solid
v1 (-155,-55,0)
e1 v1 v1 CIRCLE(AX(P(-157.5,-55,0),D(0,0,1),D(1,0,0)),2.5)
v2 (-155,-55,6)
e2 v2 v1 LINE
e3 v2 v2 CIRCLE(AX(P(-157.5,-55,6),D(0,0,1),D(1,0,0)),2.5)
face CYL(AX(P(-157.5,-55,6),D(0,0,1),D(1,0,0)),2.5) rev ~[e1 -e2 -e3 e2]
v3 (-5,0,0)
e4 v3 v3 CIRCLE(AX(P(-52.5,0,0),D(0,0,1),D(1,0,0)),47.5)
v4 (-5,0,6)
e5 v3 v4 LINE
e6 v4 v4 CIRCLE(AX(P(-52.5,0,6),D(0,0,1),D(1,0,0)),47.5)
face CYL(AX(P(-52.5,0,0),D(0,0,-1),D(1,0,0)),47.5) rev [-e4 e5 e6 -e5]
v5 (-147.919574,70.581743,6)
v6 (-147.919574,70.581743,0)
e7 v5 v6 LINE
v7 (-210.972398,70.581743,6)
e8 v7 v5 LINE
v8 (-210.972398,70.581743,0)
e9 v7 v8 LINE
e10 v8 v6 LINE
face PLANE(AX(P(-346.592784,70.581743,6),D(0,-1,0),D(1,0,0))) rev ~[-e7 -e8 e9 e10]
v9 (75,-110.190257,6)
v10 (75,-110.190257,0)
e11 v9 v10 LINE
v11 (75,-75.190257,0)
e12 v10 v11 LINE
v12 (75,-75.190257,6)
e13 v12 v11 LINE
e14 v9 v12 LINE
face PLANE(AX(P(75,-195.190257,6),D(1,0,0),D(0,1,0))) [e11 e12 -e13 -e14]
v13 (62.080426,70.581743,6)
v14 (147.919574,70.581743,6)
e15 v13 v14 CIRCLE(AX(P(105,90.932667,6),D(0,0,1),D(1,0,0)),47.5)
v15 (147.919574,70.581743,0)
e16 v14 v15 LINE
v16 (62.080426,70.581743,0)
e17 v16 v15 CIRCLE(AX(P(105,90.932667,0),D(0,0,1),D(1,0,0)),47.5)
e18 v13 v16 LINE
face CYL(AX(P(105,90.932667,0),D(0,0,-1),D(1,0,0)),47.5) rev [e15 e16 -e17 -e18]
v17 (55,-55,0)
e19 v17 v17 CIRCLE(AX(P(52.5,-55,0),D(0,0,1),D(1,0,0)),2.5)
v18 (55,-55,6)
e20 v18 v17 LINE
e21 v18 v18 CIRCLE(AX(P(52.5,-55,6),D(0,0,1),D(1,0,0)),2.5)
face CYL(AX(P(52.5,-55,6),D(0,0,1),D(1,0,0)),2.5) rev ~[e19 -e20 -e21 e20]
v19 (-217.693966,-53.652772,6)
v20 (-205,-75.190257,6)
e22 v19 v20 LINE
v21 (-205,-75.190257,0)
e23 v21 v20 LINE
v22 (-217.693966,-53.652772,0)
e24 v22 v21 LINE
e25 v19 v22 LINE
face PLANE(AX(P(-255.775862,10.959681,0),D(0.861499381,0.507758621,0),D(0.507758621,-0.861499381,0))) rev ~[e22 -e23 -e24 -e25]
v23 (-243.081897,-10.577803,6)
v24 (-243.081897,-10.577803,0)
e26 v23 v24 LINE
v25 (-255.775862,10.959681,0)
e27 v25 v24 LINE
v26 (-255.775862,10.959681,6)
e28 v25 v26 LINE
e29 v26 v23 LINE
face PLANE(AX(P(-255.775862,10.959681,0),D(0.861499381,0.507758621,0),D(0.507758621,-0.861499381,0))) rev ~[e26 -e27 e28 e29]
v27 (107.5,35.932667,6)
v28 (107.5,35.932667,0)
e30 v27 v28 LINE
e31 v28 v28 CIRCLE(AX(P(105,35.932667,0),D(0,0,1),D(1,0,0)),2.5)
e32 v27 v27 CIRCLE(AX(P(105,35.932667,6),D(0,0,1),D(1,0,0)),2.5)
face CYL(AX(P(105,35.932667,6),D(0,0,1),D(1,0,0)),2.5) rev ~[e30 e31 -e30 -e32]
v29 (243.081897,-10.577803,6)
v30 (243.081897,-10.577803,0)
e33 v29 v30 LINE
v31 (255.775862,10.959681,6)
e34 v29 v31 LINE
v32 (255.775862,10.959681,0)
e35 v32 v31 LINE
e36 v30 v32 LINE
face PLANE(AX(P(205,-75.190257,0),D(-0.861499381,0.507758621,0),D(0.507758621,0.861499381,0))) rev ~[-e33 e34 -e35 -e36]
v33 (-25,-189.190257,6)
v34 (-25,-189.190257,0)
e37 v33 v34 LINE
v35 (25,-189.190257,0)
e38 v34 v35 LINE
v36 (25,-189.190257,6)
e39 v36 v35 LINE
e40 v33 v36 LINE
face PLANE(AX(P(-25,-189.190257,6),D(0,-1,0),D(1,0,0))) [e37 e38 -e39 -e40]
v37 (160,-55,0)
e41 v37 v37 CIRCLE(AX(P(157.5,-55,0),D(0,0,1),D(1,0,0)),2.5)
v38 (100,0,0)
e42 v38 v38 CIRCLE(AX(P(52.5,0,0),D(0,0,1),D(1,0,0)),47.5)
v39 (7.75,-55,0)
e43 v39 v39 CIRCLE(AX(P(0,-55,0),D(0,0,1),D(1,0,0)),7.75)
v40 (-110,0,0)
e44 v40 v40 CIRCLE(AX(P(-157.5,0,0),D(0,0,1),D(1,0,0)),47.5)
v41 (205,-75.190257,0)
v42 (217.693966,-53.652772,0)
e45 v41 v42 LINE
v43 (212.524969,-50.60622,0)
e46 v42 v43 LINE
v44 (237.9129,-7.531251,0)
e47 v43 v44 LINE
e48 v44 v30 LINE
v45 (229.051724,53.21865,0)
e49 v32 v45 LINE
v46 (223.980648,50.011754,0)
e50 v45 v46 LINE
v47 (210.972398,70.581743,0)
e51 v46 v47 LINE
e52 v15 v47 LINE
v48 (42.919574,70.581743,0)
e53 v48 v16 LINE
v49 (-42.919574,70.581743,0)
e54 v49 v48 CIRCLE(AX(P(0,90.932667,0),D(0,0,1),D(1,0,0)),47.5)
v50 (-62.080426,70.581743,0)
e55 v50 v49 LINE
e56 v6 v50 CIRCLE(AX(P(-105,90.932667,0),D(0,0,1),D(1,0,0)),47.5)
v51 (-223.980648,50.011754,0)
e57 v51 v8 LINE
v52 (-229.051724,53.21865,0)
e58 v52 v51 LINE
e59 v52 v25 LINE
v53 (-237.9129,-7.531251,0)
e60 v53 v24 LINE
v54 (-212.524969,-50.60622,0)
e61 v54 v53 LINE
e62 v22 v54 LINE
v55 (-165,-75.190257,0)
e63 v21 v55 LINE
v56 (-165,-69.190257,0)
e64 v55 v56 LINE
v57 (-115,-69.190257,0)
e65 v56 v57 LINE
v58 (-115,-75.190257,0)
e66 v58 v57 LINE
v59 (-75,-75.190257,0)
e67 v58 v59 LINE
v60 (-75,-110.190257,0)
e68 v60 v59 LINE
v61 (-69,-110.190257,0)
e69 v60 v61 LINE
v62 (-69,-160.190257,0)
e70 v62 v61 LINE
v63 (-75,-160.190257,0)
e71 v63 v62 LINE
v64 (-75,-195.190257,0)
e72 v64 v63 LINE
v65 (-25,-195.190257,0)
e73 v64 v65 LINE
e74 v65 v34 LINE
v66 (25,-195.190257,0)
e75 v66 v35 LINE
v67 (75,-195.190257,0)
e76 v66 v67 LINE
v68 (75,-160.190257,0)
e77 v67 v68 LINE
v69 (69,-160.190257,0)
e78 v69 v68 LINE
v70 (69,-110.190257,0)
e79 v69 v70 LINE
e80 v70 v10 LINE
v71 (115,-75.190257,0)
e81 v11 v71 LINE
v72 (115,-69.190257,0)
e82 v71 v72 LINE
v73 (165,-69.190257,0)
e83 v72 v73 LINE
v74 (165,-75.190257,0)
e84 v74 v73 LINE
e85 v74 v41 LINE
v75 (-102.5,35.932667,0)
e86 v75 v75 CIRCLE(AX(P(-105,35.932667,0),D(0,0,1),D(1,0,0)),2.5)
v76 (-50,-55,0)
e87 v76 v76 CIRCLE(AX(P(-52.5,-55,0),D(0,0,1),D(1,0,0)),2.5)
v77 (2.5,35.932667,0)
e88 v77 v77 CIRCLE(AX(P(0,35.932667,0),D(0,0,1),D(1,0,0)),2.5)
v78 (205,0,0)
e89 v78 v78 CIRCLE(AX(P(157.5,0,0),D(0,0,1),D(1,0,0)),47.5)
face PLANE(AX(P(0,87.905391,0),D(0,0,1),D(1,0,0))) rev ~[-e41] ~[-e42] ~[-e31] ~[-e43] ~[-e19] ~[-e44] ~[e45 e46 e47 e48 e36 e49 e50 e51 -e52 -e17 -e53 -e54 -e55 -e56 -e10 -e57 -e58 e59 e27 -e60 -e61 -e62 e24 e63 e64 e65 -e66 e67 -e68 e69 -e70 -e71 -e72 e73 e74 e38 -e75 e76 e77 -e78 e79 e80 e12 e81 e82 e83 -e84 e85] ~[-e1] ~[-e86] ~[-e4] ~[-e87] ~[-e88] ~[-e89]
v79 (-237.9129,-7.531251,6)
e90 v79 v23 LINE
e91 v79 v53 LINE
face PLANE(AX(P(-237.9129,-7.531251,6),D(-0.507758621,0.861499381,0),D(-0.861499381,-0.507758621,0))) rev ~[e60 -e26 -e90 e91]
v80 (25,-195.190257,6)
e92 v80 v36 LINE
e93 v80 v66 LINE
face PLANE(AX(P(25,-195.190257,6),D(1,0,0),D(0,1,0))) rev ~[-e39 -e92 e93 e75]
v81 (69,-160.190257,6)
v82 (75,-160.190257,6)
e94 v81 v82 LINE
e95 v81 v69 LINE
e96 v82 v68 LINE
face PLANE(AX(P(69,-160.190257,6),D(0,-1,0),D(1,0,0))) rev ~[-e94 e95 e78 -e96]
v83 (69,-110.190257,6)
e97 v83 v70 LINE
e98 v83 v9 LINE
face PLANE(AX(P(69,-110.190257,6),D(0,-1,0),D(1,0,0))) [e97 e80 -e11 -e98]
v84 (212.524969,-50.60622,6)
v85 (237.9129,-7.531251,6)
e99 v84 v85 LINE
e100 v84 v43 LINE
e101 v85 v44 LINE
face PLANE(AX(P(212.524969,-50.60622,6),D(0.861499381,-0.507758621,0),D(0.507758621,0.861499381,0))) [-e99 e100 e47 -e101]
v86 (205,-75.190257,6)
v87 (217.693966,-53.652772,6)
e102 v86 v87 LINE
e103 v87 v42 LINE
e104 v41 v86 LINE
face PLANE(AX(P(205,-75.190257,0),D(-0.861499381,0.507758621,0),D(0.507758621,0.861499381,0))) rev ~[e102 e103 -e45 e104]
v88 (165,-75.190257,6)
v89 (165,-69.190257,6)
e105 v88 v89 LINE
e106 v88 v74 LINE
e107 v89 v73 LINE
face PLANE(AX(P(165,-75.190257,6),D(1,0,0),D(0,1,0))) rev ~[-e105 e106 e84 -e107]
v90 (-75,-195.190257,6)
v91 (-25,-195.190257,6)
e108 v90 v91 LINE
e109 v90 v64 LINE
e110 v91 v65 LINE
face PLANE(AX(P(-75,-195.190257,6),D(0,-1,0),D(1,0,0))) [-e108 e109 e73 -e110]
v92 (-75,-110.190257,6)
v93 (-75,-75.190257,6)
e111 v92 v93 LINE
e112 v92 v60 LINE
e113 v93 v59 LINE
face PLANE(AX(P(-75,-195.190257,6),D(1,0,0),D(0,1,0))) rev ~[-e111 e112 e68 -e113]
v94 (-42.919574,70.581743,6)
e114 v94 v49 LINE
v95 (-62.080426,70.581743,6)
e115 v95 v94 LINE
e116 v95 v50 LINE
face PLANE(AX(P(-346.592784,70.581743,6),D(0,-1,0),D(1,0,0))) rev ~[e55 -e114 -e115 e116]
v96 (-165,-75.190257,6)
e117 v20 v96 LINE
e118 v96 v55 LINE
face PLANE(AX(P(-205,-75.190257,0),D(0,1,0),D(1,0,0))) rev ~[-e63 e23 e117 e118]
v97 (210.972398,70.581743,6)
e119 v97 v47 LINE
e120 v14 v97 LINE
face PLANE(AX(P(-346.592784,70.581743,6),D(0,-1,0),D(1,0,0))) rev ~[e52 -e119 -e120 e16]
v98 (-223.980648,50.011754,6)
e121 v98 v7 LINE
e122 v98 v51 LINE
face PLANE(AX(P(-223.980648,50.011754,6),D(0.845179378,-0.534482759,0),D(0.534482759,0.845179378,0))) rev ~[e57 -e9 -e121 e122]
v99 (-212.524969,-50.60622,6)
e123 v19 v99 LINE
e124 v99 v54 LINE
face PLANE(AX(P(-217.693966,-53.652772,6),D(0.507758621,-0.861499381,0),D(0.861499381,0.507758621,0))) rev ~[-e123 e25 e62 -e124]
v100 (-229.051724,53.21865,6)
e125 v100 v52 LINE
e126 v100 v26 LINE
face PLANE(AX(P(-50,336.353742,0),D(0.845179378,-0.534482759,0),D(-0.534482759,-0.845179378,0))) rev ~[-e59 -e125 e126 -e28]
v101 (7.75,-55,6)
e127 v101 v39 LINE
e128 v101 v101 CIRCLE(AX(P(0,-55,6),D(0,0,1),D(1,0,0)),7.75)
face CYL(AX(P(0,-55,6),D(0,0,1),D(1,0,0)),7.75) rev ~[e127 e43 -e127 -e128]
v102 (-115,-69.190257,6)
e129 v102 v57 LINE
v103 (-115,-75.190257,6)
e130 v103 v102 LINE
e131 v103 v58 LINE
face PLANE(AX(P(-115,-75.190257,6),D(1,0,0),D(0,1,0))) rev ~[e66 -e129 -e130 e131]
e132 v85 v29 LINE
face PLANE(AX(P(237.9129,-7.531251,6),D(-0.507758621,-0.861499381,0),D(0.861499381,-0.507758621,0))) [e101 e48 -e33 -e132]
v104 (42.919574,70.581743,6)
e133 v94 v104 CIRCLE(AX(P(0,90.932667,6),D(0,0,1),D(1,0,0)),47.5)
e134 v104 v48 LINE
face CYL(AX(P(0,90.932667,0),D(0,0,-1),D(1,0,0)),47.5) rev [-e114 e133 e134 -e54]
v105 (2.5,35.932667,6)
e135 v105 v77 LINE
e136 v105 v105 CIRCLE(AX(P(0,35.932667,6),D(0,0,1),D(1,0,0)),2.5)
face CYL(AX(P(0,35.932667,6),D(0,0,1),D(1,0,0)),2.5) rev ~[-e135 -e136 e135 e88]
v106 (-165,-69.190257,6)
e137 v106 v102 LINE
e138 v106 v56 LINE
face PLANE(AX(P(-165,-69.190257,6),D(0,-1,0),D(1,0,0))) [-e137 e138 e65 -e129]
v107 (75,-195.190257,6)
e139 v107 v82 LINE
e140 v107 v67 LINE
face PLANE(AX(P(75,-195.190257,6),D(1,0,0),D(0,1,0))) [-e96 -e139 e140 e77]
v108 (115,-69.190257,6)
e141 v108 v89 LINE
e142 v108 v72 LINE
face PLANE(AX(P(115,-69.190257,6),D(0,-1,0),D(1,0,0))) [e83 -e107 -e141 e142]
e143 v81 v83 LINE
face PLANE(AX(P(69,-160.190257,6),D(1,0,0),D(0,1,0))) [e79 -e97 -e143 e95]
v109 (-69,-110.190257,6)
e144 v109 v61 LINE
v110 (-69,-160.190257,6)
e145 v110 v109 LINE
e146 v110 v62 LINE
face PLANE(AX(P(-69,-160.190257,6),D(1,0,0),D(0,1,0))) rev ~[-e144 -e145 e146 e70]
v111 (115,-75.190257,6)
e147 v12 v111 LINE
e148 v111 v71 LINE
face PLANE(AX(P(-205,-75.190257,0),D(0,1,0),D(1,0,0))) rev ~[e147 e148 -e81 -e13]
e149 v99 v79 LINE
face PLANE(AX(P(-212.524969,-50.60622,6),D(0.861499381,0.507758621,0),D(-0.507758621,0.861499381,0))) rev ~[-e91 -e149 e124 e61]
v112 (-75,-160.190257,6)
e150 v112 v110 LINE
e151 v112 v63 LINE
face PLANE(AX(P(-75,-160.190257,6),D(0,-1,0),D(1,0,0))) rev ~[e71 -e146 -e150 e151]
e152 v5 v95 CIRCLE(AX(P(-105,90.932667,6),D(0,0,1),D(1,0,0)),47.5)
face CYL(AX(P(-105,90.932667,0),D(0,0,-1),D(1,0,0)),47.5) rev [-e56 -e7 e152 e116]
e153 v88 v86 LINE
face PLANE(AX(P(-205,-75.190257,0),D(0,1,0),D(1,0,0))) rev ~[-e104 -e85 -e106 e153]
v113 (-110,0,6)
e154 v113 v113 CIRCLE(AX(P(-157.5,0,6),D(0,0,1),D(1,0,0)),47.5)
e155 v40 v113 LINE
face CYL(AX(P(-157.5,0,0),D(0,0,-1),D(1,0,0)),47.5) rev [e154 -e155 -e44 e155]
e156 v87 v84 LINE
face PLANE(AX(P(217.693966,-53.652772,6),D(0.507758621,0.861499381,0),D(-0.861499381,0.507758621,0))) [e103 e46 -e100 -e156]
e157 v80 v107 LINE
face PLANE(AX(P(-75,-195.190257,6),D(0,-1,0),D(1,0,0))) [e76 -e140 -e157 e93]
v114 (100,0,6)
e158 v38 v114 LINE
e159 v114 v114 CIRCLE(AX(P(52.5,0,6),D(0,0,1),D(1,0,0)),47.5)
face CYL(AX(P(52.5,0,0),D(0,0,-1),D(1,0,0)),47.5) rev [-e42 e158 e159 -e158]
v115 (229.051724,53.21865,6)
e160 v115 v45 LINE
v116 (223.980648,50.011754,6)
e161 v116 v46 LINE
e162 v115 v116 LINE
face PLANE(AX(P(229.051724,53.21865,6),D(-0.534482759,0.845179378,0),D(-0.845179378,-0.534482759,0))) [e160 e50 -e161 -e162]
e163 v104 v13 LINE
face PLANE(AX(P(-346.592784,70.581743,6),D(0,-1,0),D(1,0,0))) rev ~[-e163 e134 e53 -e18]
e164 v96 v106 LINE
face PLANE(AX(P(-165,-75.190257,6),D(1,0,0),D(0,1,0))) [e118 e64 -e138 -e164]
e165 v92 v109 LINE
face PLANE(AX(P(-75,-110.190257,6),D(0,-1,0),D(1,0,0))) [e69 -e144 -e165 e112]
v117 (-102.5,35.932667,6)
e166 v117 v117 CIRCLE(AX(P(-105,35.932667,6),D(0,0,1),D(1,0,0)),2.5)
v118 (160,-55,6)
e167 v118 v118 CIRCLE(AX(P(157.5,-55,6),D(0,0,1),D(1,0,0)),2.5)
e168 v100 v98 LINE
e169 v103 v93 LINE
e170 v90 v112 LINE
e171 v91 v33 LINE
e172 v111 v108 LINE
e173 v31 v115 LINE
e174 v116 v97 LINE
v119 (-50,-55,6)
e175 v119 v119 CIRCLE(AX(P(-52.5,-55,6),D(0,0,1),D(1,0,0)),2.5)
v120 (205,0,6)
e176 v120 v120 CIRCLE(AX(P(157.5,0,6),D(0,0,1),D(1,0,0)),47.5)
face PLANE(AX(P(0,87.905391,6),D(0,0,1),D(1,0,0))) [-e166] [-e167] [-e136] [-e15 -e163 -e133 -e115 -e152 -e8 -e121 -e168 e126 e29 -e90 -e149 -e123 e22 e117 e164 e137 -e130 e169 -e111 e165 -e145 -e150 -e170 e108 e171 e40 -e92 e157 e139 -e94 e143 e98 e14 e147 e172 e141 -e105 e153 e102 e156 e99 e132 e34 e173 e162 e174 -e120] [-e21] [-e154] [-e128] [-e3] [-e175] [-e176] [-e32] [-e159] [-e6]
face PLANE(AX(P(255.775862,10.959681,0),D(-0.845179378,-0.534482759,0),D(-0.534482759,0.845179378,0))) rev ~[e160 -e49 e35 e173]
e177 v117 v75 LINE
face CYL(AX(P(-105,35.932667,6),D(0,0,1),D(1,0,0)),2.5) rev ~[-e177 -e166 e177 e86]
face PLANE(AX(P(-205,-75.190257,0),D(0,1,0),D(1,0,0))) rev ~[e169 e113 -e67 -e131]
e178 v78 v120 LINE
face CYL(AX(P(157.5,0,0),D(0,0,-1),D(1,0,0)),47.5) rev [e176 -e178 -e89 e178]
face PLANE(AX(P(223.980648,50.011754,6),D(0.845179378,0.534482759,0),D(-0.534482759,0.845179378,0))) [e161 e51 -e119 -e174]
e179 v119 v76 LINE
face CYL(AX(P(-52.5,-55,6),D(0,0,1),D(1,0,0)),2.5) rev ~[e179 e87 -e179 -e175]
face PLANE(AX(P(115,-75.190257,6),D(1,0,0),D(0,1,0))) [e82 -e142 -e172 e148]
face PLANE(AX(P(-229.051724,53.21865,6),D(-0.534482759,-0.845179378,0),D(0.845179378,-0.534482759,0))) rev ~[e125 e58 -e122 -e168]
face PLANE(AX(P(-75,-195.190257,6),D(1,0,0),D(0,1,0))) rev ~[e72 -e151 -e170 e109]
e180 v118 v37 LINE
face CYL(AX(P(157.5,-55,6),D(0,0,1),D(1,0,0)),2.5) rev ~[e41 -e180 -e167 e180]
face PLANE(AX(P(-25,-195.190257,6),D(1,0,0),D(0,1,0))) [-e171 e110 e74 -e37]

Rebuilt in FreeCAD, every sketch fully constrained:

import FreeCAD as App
import Part
import Sketcher
Q = App.Units.Quantity

doc = App.newDocument("Part")
body = doc.addObject("PartDesign::Body", "Body")

# Sketch on XY plane
sketch1 = body.newObject("Sketcher::SketchObject", "Sketch")
sketch1.AttachmentSupport = (doc.getObject("XY_Plane"), [""])
sketch1.MapMode = "FlatFace"
sketch1.addGeometry(Part.LineSegment(App.Vector(-255.775862, 10.959681, 0), App.Vector(-205, -75.190257, 0)), False)
sketch1.addGeometry(Part.LineSegment(App.Vector(-205, -75.190257, 0), App.Vector(205, -75.190257, 0)), False)
sketch1.addGeometry(Part.LineSegment(App.Vector(205, -75.190257, 0), App.Vector(255.775862, 10.959681, 0)), False)
sketch1.addGeometry(Part.LineSegment(App.Vector(255.775862, 10.959681, 0), App.Vector(50, 336.353742, 0)), False)
sketch1.addGeometry(Part.LineSegment(App.Vector(50, 336.353742, 0), App.Vector(-50, 336.353742, 0)), False)
sketch1.addGeometry(Part.LineSegment(App.Vector(-50, 336.353742, 0), App.Vector(-255.775862, 10.959681, 0)), False)
sketch1.addGeometry(Part.Circle(App.Vector(-157.5, 0, 0), App.Vector(0, 0, 1), 47.5), False)
sketch1.addGeometry(Part.Circle(App.Vector(-52.5, 0, 0), App.Vector(0, 0, 1), 47.5), False)
sketch1.addGeometry(Part.Circle(App.Vector(-105, 90.932667, 0), App.Vector(0, 0, 1), 47.5), False)
sketch1.addGeometry(Part.Circle(App.Vector(52.5, 0, 0), App.Vector(0, 0, 1), 47.5), False)
sketch1.addGeometry(Part.Circle(App.Vector(157.5, 0, 0), App.Vector(0, 0, 1), 47.5), False)
sketch1.addGeometry(Part.Circle(App.Vector(0, 90.932667, 0), App.Vector(0, 0, 1), 47.5), False)
sketch1.addGeometry(Part.Circle(App.Vector(105, 90.932667, 0), App.Vector(0, 0, 1), 47.5), False)
sketch1.addGeometry(Part.Circle(App.Vector(-52.5, 181.865335, 0), App.Vector(0, 0, 1), 47.5), False)
sketch1.addGeometry(Part.Circle(App.Vector(52.5, 181.865335, 0), App.Vector(0, 0, 1), 47.5), False)
sketch1.addGeometry(Part.Circle(App.Vector(0, 272.798002, 0), App.Vector(0, 0, 1), 47.5), False)
sketch1.addConstraint(Sketcher.Constraint("Coincident", 0, 2, 1, 1))
sketch1.addConstraint(Sketcher.Constraint("Coincident", 1, 2, 2, 1))
sketch1.addConstraint(Sketcher.Constraint("Coincident", 2, 2, 3, 1))
sketch1.addConstraint(Sketcher.Constraint("Coincident", 3, 2, 4, 1))
sketch1.addConstraint(Sketcher.Constraint("Coincident", 4, 2, 5, 1))
sketch1.addConstraint(Sketcher.Constraint("Coincident", 5, 2, 0, 1))
sketch1.addConstraint(Sketcher.Constraint("Horizontal", 1))
sketch1.addConstraint(Sketcher.Constraint("Horizontal", 4))
sketch1.addConstraint(Sketcher.Constraint("Equal", 6, 7))
sketch1.addConstraint(Sketcher.Constraint("Equal", 7, 8))
sketch1.addConstraint(Sketcher.Constraint("Equal", 8, 9))
sketch1.addConstraint(Sketcher.Constraint("Equal", 9, 10))
sketch1.addConstraint(Sketcher.Constraint("Equal", 10, 11))
sketch1.addConstraint(Sketcher.Constraint("Equal", 11, 12))
sketch1.addConstraint(Sketcher.Constraint("Equal", 12, 13))
sketch1.addConstraint(Sketcher.Constraint("Equal", 13, 14))
sketch1.addConstraint(Sketcher.Constraint("Equal", 14, 15))
sketch1.addConstraint(Sketcher.Constraint("Symmetric", 7, 3, 9, 3, -1, 1))
sketch1.addConstraint(Sketcher.Constraint("Symmetric", 6, 3, 10, 3, -1, 1))
sketch1.addConstraint(Sketcher.Constraint("Symmetric", 8, 3, 12, 3, -2))
sketch1.addConstraint(Sketcher.Constraint("Symmetric", 13, 3, 14, 3, -2))
sketch1.addConstraint(Sketcher.Constraint("Symmetric", 2, 2, 5, 2, -2))
sketch1.addConstraint(Sketcher.Constraint("PointOnObject", 6, 3, -1))
sketch1.addConstraint(Sketcher.Constraint("PointOnObject", 7, 3, -1))
sketch1.addConstraint(Sketcher.Constraint("PointOnObject", 11, 3, -2))
sketch1.addConstraint(Sketcher.Constraint("PointOnObject", 15, 3, -2))
sketch1.addConstraint(Sketcher.Constraint("Horizontal", 8, 3, 11, 3))
sketch1.addConstraint(Sketcher.Constraint("Vertical", 7, 3, 13, 3))
sketch1.addConstraint(Sketcher.Constraint("Equal", 0, 2))
sketch1.addConstraint(Sketcher.Constraint("Equal", 3, 5))
sketch1.addConstraint(Sketcher.Constraint("Diameter", 6, Q("95 mm")))
sketch1.addConstraint(Sketcher.Constraint("DistanceX", 1, 1, 1, 2, Q("410 mm")))
sketch1.addConstraint(Sketcher.Constraint("DistanceX", 4, 2, 4, 1, Q("100 mm")))
sketch1.addConstraint(Sketcher.Constraint("Distance", 0, Q("100 mm")))
sketch1.addConstraint(Sketcher.Constraint("Distance", 3, Q("385 mm")))
sketch1.addConstraint(Sketcher.Constraint("DistanceX", 8, 3, -1, 1, Q("105 mm")))
sketch1.addConstraint(Sketcher.Constraint("DistanceX", 6, 3, 7, 3, Q("105 mm")))
sketch1.addConstraint(Sketcher.Constraint("DistanceX", 7, 3, 9, 3, Q("105 mm")))
sketch1.addConstraint(Sketcher.Constraint("DistanceY", -1, 1, 2, 2, Q("10.959681 mm")))
sketch1.addConstraint(Sketcher.Constraint("DistanceY", -1, 1, 3, 2, Q("336.353742 mm")))
sketch1.addConstraint(Sketcher.Constraint("DistanceY", 15, 3, 3, 2, Q("63.55574 mm")))
sketch1.addConstraint(Sketcher.Constraint("DistanceY", -1, 1, 8, 3, Q("90.932667 mm")))
sketch1.addConstraint(Sketcher.Constraint("DistanceY", -1, 1, 13, 3, Q("181.865335 mm")))
pad1 = body.newObject("PartDesign::Pad", "Pad")
pad1.Profile = sketch1
pad1.Length = 6

# Sketch on XY plane
sketch2 = body.newObject("Sketcher::SketchObject", "Sketch001")
sketch2.AttachmentSupport = (doc.getObject("XY_Plane"), [""])
sketch2.MapMode = "FlatFace"
sketch2.AttachmentOffset = App.Placement(App.Vector(0, 0, 6), App.Rotation())
sketch2.addGeometry(Part.LineSegment(App.Vector(-75, -75.190257, 0), App.Vector(-75, -195.190257, 0)), False)
sketch2.addGeometry(Part.LineSegment(App.Vector(-75, -195.190257, 0), App.Vector(75, -195.190257, 0)), False)
sketch2.addGeometry(Part.LineSegment(App.Vector(75, -195.190257, 0), App.Vector(75, -75.190257, 0)), False)
sketch2.addGeometry(Part.LineSegment(App.Vector(75, -75.190257, 0), App.Vector(-75, -75.190257, 0)), False)
sketch2.addConstraint(Sketcher.Constraint("Coincident", 0, 2, 1, 1))
sketch2.addConstraint(Sketcher.Constraint("Coincident", 1, 2, 2, 1))
sketch2.addConstraint(Sketcher.Constraint("Coincident", 2, 2, 3, 1))
sketch2.addConstraint(Sketcher.Constraint("Coincident", 3, 2, 0, 1))
sketch2.addConstraint(Sketcher.Constraint("Vertical", 0))
sketch2.addConstraint(Sketcher.Constraint("Horizontal", 1))
sketch2.addConstraint(Sketcher.Constraint("Vertical", 2))
sketch2.addConstraint(Sketcher.Constraint("Horizontal", 3))
sketch2.addConstraint(Sketcher.Constraint("DistanceX", 1, 1, 1, 2, Q("150 mm")))
sketch2.addConstraint(Sketcher.Constraint("DistanceY", 0, 2, 0, 1, Q("120 mm")))
sketch2.addConstraint(Sketcher.Constraint("DistanceX", 0, 2, -1, 1, Q("75 mm")))
sketch2.addConstraint(Sketcher.Constraint("DistanceY", 0, 2, -1, 1, Q("195.190257 mm")))
pad2 = body.newObject("PartDesign::Pad", "Pad001")
pad2.Profile = sketch2
pad2.Length = 6
pad2.Reversed = True

# Sketch on XY plane
sketch3 = body.newObject("Sketcher::SketchObject", "Sketch002")
sketch3.AttachmentSupport = (doc.getObject("XY_Plane"), [""])
sketch3.MapMode = "FlatFace"
sketch3.AttachmentOffset = App.Placement(App.Vector(0, 0, 6), App.Rotation())
sketch3.addGeometry(Part.LineSegment(App.Vector(-75, -110.190257, 0), App.Vector(-75, -160.190257, 0)), False)
sketch3.addGeometry(Part.LineSegment(App.Vector(-75, -160.190257, 0), App.Vector(-69, -160.190257, 0)), False)
sketch3.addGeometry(Part.LineSegment(App.Vector(-69, -160.190257, 0), App.Vector(-69, -110.190257, 0)), False)
sketch3.addGeometry(Part.LineSegment(App.Vector(-69, -110.190257, 0), App.Vector(-75, -110.190257, 0)), False)
sketch3.addGeometry(Part.LineSegment(App.Vector(-25, -189.190257, 0), App.Vector(-25, -195.190257, 0)), False)
sketch3.addGeometry(Part.LineSegment(App.Vector(-25, -195.190257, 0), App.Vector(25, -195.190257, 0)), False)
sketch3.addGeometry(Part.LineSegment(App.Vector(25, -195.190257, 0), App.Vector(25, -189.190257, 0)), False)
sketch3.addGeometry(Part.LineSegment(App.Vector(25, -189.190257, 0), App.Vector(-25, -189.190257, 0)), False)
sketch3.addGeometry(Part.LineSegment(App.Vector(-165, -69.190257, 0), App.Vector(-165, -75.190257, 0)), False)
sketch3.addGeometry(Part.LineSegment(App.Vector(-165, -75.190257, 0), App.Vector(-115, -75.190257, 0)), False)
sketch3.addGeometry(Part.LineSegment(App.Vector(-115, -75.190257, 0), App.Vector(-115, -69.190257, 0)), False)
sketch3.addGeometry(Part.LineSegment(App.Vector(-115, -69.190257, 0), App.Vector(-165, -69.190257, 0)), False)
sketch3.addGeometry(Part.LineSegment(App.Vector(-217.693966, -53.652772, 0), App.Vector(-212.524969, -50.60622, 0)), False)
sketch3.addGeometry(Part.LineSegment(App.Vector(-212.524969, -50.60622, 0), App.Vector(-237.9129, -7.531251, 0)), False)
sketch3.addGeometry(Part.LineSegment(App.Vector(-237.9129, -7.531251, 0), App.Vector(-243.081897, -10.577803, 0)), False)
sketch3.addGeometry(Part.LineSegment(App.Vector(-243.081897, -10.577803, 0), App.Vector(-217.693966, -53.652772, 0)), False)
sketch3.addGeometry(Part.LineSegment(App.Vector(-229.051724, 53.21865, 0), App.Vector(-223.980648, 50.011754, 0)), False)
sketch3.addGeometry(Part.LineSegment(App.Vector(-223.980648, 50.011754, 0), App.Vector(-170.532372, 134.529691, 0)), False)
sketch3.addGeometry(Part.LineSegment(App.Vector(-170.532372, 134.529691, 0), App.Vector(-175.603448, 137.736588, 0)), False)
sketch3.addGeometry(Part.LineSegment(App.Vector(-175.603448, 137.736588, 0), App.Vector(-229.051724, 53.21865, 0)), False)
sketch3.addGeometry(Part.LineSegment(App.Vector(-130.172414, 209.576835, 0), App.Vector(-125.101338, 206.369939, 0)), False)
sketch3.addGeometry(Part.LineSegment(App.Vector(-125.101338, 206.369939, 0), App.Vector(-71.653062, 290.887876, 0)), False)
sketch3.addGeometry(Part.LineSegment(App.Vector(-71.653062, 290.887876, 0), App.Vector(-76.724138, 294.094773, 0)), False)
sketch3.addGeometry(Part.LineSegment(App.Vector(-76.724138, 294.094773, 0), App.Vector(-130.172414, 209.576835, 0)), False)
sketch3.addGeometry(Part.LineSegment(App.Vector(-25, 336.353742, 0), App.Vector(-25, 330.353742, 0)), False)
sketch3.addGeometry(Part.LineSegment(App.Vector(-25, 330.353742, 0), App.Vector(25, 330.353742, 0)), False)
sketch3.addGeometry(Part.LineSegment(App.Vector(25, 330.353742, 0), App.Vector(25, 336.353742, 0)), False)
sketch3.addGeometry(Part.LineSegment(App.Vector(25, 336.353742, 0), App.Vector(-25, 336.353742, 0)), False)
sketch3.addGeometry(Part.LineSegment(App.Vector(76.724138, 294.094773, 0), App.Vector(71.653062, 290.887876, 0)), False)
sketch3.addGeometry(Part.LineSegment(App.Vector(71.653062, 290.887876, 0), App.Vector(125.101338, 206.369939, 0)), False)
sketch3.addGeometry(Part.LineSegment(App.Vector(125.101338, 206.369939, 0), App.Vector(130.172414, 209.576835, 0)), False)
sketch3.addGeometry(Part.LineSegment(App.Vector(130.172414, 209.576835, 0), App.Vector(76.724138, 294.094773, 0)), False)
sketch3.addGeometry(Part.LineSegment(App.Vector(175.603448, 137.736588, 0), App.Vector(170.532372, 134.529691, 0)), False)
sketch3.addGeometry(Part.LineSegment(App.Vector(170.532372, 134.529691, 0), App.Vector(223.980648, 50.011754, 0)), False)
sketch3.addGeometry(Part.LineSegment(App.Vector(223.980648, 50.011754, 0), App.Vector(229.051724, 53.21865, 0)), False)
sketch3.addGeometry(Part.LineSegment(App.Vector(229.051724, 53.21865, 0), App.Vector(175.603448, 137.736588, 0)), False)
sketch3.addGeometry(Part.LineSegment(App.Vector(243.081897, -10.577803, 0), App.Vector(237.9129, -7.531251, 0)), False)
sketch3.addGeometry(Part.LineSegment(App.Vector(237.9129, -7.531251, 0), App.Vector(212.524969, -50.60622, 0)), False)
sketch3.addGeometry(Part.LineSegment(App.Vector(212.524969, -50.60622, 0), App.Vector(217.693966, -53.652772, 0)), False)
sketch3.addGeometry(Part.LineSegment(App.Vector(217.693966, -53.652772, 0), App.Vector(243.081897, -10.577803, 0)), False)
sketch3.addGeometry(Part.LineSegment(App.Vector(115, -69.190257, 0), App.Vector(115, -75.190257, 0)), False)
sketch3.addGeometry(Part.LineSegment(App.Vector(115, -75.190257, 0), App.Vector(165, -75.190257, 0)), False)
sketch3.addGeometry(Part.LineSegment(App.Vector(165, -75.190257, 0), App.Vector(165, -69.190257, 0)), False)
sketch3.addGeometry(Part.LineSegment(App.Vector(165, -69.190257, 0), App.Vector(115, -69.190257, 0)), False)
sketch3.addGeometry(Part.LineSegment(App.Vector(69, -110.190257, 0), App.Vector(69, -160.190257, 0)), False)
sketch3.addGeometry(Part.LineSegment(App.Vector(69, -160.190257, 0), App.Vector(75, -160.190257, 0)), False)
sketch3.addGeometry(Part.LineSegment(App.Vector(75, -160.190257, 0), App.Vector(75, -110.190257, 0)), False)
sketch3.addGeometry(Part.LineSegment(App.Vector(75, -110.190257, 0), App.Vector(69, -110.190257, 0)), False)
sketch3.addConstraint(Sketcher.Constraint("Coincident", 0, 2, 1, 1))
sketch3.addConstraint(Sketcher.Constraint("Coincident", 1, 2, 2, 1))
sketch3.addConstraint(Sketcher.Constraint("Coincident", 2, 2, 3, 1))
sketch3.addConstraint(Sketcher.Constraint("Coincident", 3, 2, 0, 1))
sketch3.addConstraint(Sketcher.Constraint("Coincident", 4, 2, 5, 1))
sketch3.addConstraint(Sketcher.Constraint("Coincident", 5, 2, 6, 1))
sketch3.addConstraint(Sketcher.Constraint("Coincident", 6, 2, 7, 1))
sketch3.addConstraint(Sketcher.Constraint("Coincident", 7, 2, 4, 1))
sketch3.addConstraint(Sketcher.Constraint("Coincident", 8, 2, 9, 1))
sketch3.addConstraint(Sketcher.Constraint("Coincident", 9, 2, 10, 1))
sketch3.addConstraint(Sketcher.Constraint("Coincident", 10, 2, 11, 1))
sketch3.addConstraint(Sketcher.Constraint("Coincident", 11, 2, 8, 1))
sketch3.addConstraint(Sketcher.Constraint("Coincident", 12, 2, 13, 1))
sketch3.addConstraint(Sketcher.Constraint("Coincident", 13, 2, 14, 1))
sketch3.addConstraint(Sketcher.Constraint("Coincident", 14, 2, 15, 1))
sketch3.addConstraint(Sketcher.Constraint("Coincident", 15, 2, 12, 1))
sketch3.addConstraint(Sketcher.Constraint("Coincident", 16, 2, 17, 1))
sketch3.addConstraint(Sketcher.Constraint("Coincident", 17, 2, 18, 1))
sketch3.addConstraint(Sketcher.Constraint("Coincident", 18, 2, 19, 1))
sketch3.addConstraint(Sketcher.Constraint("Coincident", 19, 2, 16, 1))
sketch3.addConstraint(Sketcher.Constraint("Coincident", 20, 2, 21, 1))
sketch3.addConstraint(Sketcher.Constraint("Coincident", 21, 2, 22, 1))
sketch3.addConstraint(Sketcher.Constraint("Coincident", 22, 2, 23, 1))
sketch3.addConstraint(Sketcher.Constraint("Coincident", 23, 2, 20, 1))
sketch3.addConstraint(Sketcher.Constraint("Coincident", 24, 2, 25, 1))
sketch3.addConstraint(Sketcher.Constraint("Coincident", 25, 2, 26, 1))
sketch3.addConstraint(Sketcher.Constraint("Coincident", 26, 2, 27, 1))
sketch3.addConstraint(Sketcher.Constraint("Coincident", 27, 2, 24, 1))
sketch3.addConstraint(Sketcher.Constraint("Coincident", 28, 2, 29, 1))
sketch3.addConstraint(Sketcher.Constraint("Coincident", 29, 2, 30, 1))
sketch3.addConstraint(Sketcher.Constraint("Coincident", 30, 2, 31, 1))
sketch3.addConstraint(Sketcher.Constraint("Coincident", 31, 2, 28, 1))
sketch3.addConstraint(Sketcher.Constraint("Coincident", 32, 2, 33, 1))
sketch3.addConstraint(Sketcher.Constraint("Coincident", 33, 2, 34, 1))
sketch3.addConstraint(Sketcher.Constraint("Coincident", 34, 2, 35, 1))
sketch3.addConstraint(Sketcher.Constraint("Coincident", 35, 2, 32, 1))
sketch3.addConstraint(Sketcher.Constraint("Coincident", 36, 2, 37, 1))
sketch3.addConstraint(Sketcher.Constraint("Coincident", 37, 2, 38, 1))
sketch3.addConstraint(Sketcher.Constraint("Coincident", 38, 2, 39, 1))
sketch3.addConstraint(Sketcher.Constraint("Coincident", 39, 2, 36, 1))
sketch3.addConstraint(Sketcher.Constraint("Coincident", 40, 2, 41, 1))
sketch3.addConstraint(Sketcher.Constraint("Coincident", 41, 2, 42, 1))
sketch3.addConstraint(Sketcher.Constraint("Coincident", 42, 2, 43, 1))
sketch3.addConstraint(Sketcher.Constraint("Coincident", 43, 2, 40, 1))
sketch3.addConstraint(Sketcher.Constraint("Coincident", 44, 2, 45, 1))
sketch3.addConstraint(Sketcher.Constraint("Coincident", 45, 2, 46, 1))
sketch3.addConstraint(Sketcher.Constraint("Coincident", 46, 2, 47, 1))
sketch3.addConstraint(Sketcher.Constraint("Coincident", 47, 2, 44, 1))
sketch3.addConstraint(Sketcher.Constraint("Vertical", 0))
sketch3.addConstraint(Sketcher.Constraint("Horizontal", 1))
sketch3.addConstraint(Sketcher.Constraint("Vertical", 2))
sketch3.addConstraint(Sketcher.Constraint("Horizontal", 3))
sketch3.addConstraint(Sketcher.Constraint("Vertical", 4))
sketch3.addConstraint(Sketcher.Constraint("Horizontal", 5))
sketch3.addConstraint(Sketcher.Constraint("Vertical", 6))
sketch3.addConstraint(Sketcher.Constraint("Horizontal", 7))
sketch3.addConstraint(Sketcher.Constraint("Vertical", 8))
sketch3.addConstraint(Sketcher.Constraint("Horizontal", 9))
sketch3.addConstraint(Sketcher.Constraint("Vertical", 10))
sketch3.addConstraint(Sketcher.Constraint("Horizontal", 11))
sketch3.addConstraint(Sketcher.Constraint("Vertical", 24))
sketch3.addConstraint(Sketcher.Constraint("Horizontal", 25))
sketch3.addConstraint(Sketcher.Constraint("Vertical", 26))
sketch3.addConstraint(Sketcher.Constraint("Horizontal", 27))
sketch3.addConstraint(Sketcher.Constraint("Vertical", 40))
sketch3.addConstraint(Sketcher.Constraint("Horizontal", 41))
sketch3.addConstraint(Sketcher.Constraint("Vertical", 42))
sketch3.addConstraint(Sketcher.Constraint("Horizontal", 43))
sketch3.addConstraint(Sketcher.Constraint("Vertical", 44))
sketch3.addConstraint(Sketcher.Constraint("Horizontal", 45))
sketch3.addConstraint(Sketcher.Constraint("Vertical", 46))
sketch3.addConstraint(Sketcher.Constraint("Horizontal", 47))
sketch3.addConstraint(Sketcher.Constraint("Symmetric", 21, 2, 28, 2, -2))
sketch3.addConstraint(Sketcher.Constraint("Symmetric", 20, 2, 29, 2, -2))
sketch3.addConstraint(Sketcher.Constraint("Symmetric", 23, 2, 30, 2, -2))
sketch3.addConstraint(Sketcher.Constraint("Symmetric", 22, 2, 31, 2, -2))
sketch3.addConstraint(Sketcher.Constraint("Symmetric", 17, 2, 32, 2, -2))
sketch3.addConstraint(Sketcher.Constraint("Symmetric", 16, 2, 33, 2, -2))
sketch3.addConstraint(Sketcher.Constraint("Symmetric", 19, 2, 34, 2, -2))
sketch3.addConstraint(Sketcher.Constraint("Symmetric", 18, 2, 35, 2, -2))
sketch3.addConstraint(Sketcher.Constraint("Symmetric", 13, 2, 36, 2, -2))
sketch3.addConstraint(Sketcher.Constraint("Symmetric", 12, 2, 37, 2, -2))
sketch3.addConstraint(Sketcher.Constraint("Symmetric", 15, 2, 38, 2, -2))
sketch3.addConstraint(Sketcher.Constraint("Symmetric", 14, 2, 39, 2, -2))
sketch3.addConstraint(Sketcher.Constraint("Symmetric", 9, 2, 40, 2, -2))
sketch3.addConstraint(Sketcher.Constraint("Symmetric", 11, 2, 42, 2, -2))
sketch3.addConstraint(Sketcher.Constraint("Symmetric", 1, 2, 44, 2, -2))
sketch3.addConstraint(Sketcher.Constraint("Symmetric", 3, 2, 46, 2, -2))
sketch3.addConstraint(Sketcher.Constraint("Perpendicular", 12, 13))
sketch3.addConstraint(Sketcher.Constraint("Perpendicular", 13, 14))
sketch3.addConstraint(Sketcher.Constraint("Perpendicular", 14, 15))
sketch3.addConstraint(Sketcher.Constraint("Perpendicular", 16, 17))
sketch3.addConstraint(Sketcher.Constraint("Perpendicular", 17, 18))
sketch3.addConstraint(Sketcher.Constraint("Perpendicular", 18, 19))
sketch3.addConstraint(Sketcher.Constraint("Perpendicular", 19, 20))
sketch3.addConstraint(Sketcher.Constraint("Perpendicular", 20, 21))
sketch3.addConstraint(Sketcher.Constraint("Perpendicular", 21, 22))
sketch3.addConstraint(Sketcher.Constraint("Perpendicular", 22, 23))
sketch3.addConstraint(Sketcher.Constraint("Vertical", 7, 2, 24, 2))
sketch3.addConstraint(Sketcher.Constraint("Vertical", 6, 2, 25, 2))
sketch3.addConstraint(Sketcher.Constraint("Equal", 7, 9))
sketch3.addConstraint(Sketcher.Constraint("Equal", 43, 0))
sketch3.addConstraint(Sketcher.Constraint("Equal", 47, 4))
sketch3.addConstraint(Sketcher.Constraint("Equal", 6, 8))
sketch3.addConstraint(Sketcher.Constraint("Equal", 10, 24))
sketch3.addConstraint(Sketcher.Constraint("Equal", 14, 16))
sketch3.addConstraint(Sketcher.Constraint("Equal", 18, 20))
sketch3.addConstraint(Sketcher.Constraint("Equal", 19, 21))
sketch3.addConstraint(Sketcher.Constraint("DistanceX", 1, 1, 1, 2, Q("6 mm")))
sketch3.addConstraint(Sketcher.Constraint("DistanceX", 5, 1, 5, 2, Q("50 mm")))
sketch3.addConstraint(Sketcher.Constraint("Distance", 12, Q("6 mm")))
sketch3.addConstraint(Sketcher.Constraint("Distance", 13, Q("50 mm")))
sketch3.addConstraint(Sketcher.Constraint("Distance", 17, Q("100 mm")))
sketch3.addConstraint(Sketcher.Constraint("DistanceX", 0, 2, -1, 1, Q("75 mm")))
sketch3.addConstraint(Sketcher.Constraint("DistanceX", 4, 2, -1, 1, Q("25 mm")))
sketch3.addConstraint(Sketcher.Constraint("DistanceX", 8, 2, -1, 1, Q("165 mm")))
sketch3.addConstraint(Sketcher.Constraint("DistanceY", 4, 2, 1, 2, Q("35 mm")))
sketch3.addConstraint(Sketcher.Constraint("DistanceY", 3, 2, 8, 2, Q("35 mm")))
sketch3.addConstraint(Sketcher.Constraint("DistanceX", 13, 2, -1, 1, Q("237.9129 mm")))
sketch3.addConstraint(Sketcher.Constraint("DistanceX", 16, 2, 18, 2, Q("48.3772 mm")))
sketch3.addConstraint(Sketcher.Constraint("DistanceY", 13, 2, 19, 2, Q("60.749902 mm")))
sketch3.addConstraint(Sketcher.Constraint("DistanceX", 12, 2, -1, 1, Q("212.524969 mm")))
sketch3.addConstraint(Sketcher.Constraint("DistanceY", 12, 2, -1, 1, Q("50.60622 mm")))
sketch3.addConstraint(Sketcher.Constraint("DistanceX", 18, 2, -1, 1, Q("175.603448 mm")))
sketch3.addConstraint(Sketcher.Constraint("DistanceY", -1, 1, 20, 2, Q("206.369939 mm")))
sketch3.addConstraint(Sketcher.Constraint("DistanceX", 21, 2, -1, 1, Q("71.653062 mm")))
sketch3.addConstraint(Sketcher.Constraint("DistanceY", -1, 1, 24, 2, Q("330.353742 mm")))
sketch3.addConstraint(Sketcher.Constraint("DistanceY", 11, 2, 16, 2, Q("119.20201 mm")))
pocket1 = body.newObject("PartDesign::Pocket", "Pocket")
pocket1.Profile = sketch3
pocket1.Length = 10

# Sketch on XY plane
sketch4 = body.newObject("Sketcher::SketchObject", "Sketch003")
sketch4.AttachmentSupport = (doc.getObject("XY_Plane"), [""])
sketch4.MapMode = "FlatFace"
sketch4.AttachmentOffset = App.Placement(App.Vector(0, 0, 6), App.Rotation())
sketch4.addGeometry(Part.LineSegment(App.Vector(-346.592784, 336.353742, 0), App.Vector(-346.592784, 70.581743, 0)), False)
sketch4.addGeometry(Part.LineSegment(App.Vector(-346.592784, 70.581743, 0), App.Vector(328.945494, 70.581743, 0)), False)
sketch4.addGeometry(Part.LineSegment(App.Vector(328.945494, 70.581743, 0), App.Vector(328.945494, 336.353742, 0)), False)
sketch4.addGeometry(Part.LineSegment(App.Vector(328.945494, 336.353742, 0), App.Vector(-346.592784, 336.353742, 0)), False)
sketch4.addConstraint(Sketcher.Constraint("Coincident", 0, 2, 1, 1))
sketch4.addConstraint(Sketcher.Constraint("Coincident", 1, 2, 2, 1))
sketch4.addConstraint(Sketcher.Constraint("Coincident", 2, 2, 3, 1))
sketch4.addConstraint(Sketcher.Constraint("Coincident", 3, 2, 0, 1))
sketch4.addConstraint(Sketcher.Constraint("Vertical", 0))
sketch4.addConstraint(Sketcher.Constraint("Horizontal", 1))
sketch4.addConstraint(Sketcher.Constraint("Vertical", 2))
sketch4.addConstraint(Sketcher.Constraint("Horizontal", 3))
sketch4.addConstraint(Sketcher.Constraint("DistanceY", 0, 2, 0, 1, Q("265.771999 mm")))
sketch4.addConstraint(Sketcher.Constraint("DistanceX", 1, 1, 1, 2, Q("675.538278 mm")))
sketch4.addConstraint(Sketcher.Constraint("DistanceY", -1, 1, 2, 2, Q("336.353742 mm")))
sketch4.addConstraint(Sketcher.Constraint("DistanceX", 0, 2, -1, 1, Q("346.592784 mm")))
pocket2 = body.newObject("PartDesign::Pocket", "Pocket001")
pocket2.Profile = sketch4
pocket2.Length = 10

# Sketch on XY plane
sketch5 = body.newObject("Sketcher::SketchObject", "Sketch004")
sketch5.AttachmentSupport = (doc.getObject("XY_Plane"), [""])
sketch5.MapMode = "FlatFace"
sketch5.AttachmentOffset = App.Placement(App.Vector(0, 0, 6), App.Rotation())
sketch5.addGeometry(Part.Circle(App.Vector(-157.5, -55, 0), App.Vector(0, 0, 1), 2.5), False)
sketch5.addGeometry(Part.Circle(App.Vector(-52.5, -55, 0), App.Vector(0, 0, 1), 2.5), False)
sketch5.addGeometry(Part.Circle(App.Vector(52.5, -55, 0), App.Vector(0, 0, 1), 2.5), False)
sketch5.addGeometry(Part.Circle(App.Vector(157.5, -55, 0), App.Vector(0, 0, 1), 2.5), False)
sketch5.addGeometry(Part.Circle(App.Vector(-105, 35.932667, 0), App.Vector(0, 0, 1), 2.5), False)
sketch5.addGeometry(Part.Circle(App.Vector(0, 35.932667, 0), App.Vector(0, 0, 1), 2.5), False)
sketch5.addGeometry(Part.Circle(App.Vector(105, 35.932667, 0), App.Vector(0, 0, 1), 2.5), False)
sketch5.addConstraint(Sketcher.Constraint("Equal", 0, 1))
sketch5.addConstraint(Sketcher.Constraint("Equal", 1, 2))
sketch5.addConstraint(Sketcher.Constraint("Equal", 2, 3))
sketch5.addConstraint(Sketcher.Constraint("Equal", 3, 4))
sketch5.addConstraint(Sketcher.Constraint("Equal", 4, 5))
sketch5.addConstraint(Sketcher.Constraint("Equal", 5, 6))
sketch5.addConstraint(Sketcher.Constraint("Symmetric", 1, 3, 2, 3, -2))
sketch5.addConstraint(Sketcher.Constraint("Symmetric", 0, 3, 3, 3, -2))
sketch5.addConstraint(Sketcher.Constraint("Symmetric", 4, 3, 6, 3, -2))
sketch5.addConstraint(Sketcher.Constraint("PointOnObject", 5, 3, -2))
sketch5.addConstraint(Sketcher.Constraint("Horizontal", 0, 3, 1, 3))
sketch5.addConstraint(Sketcher.Constraint("Horizontal", 4, 3, 5, 3))
sketch5.addConstraint(Sketcher.Constraint("Diameter", 0, Q("5 mm")))
sketch5.addConstraint(Sketcher.Constraint("DistanceY", 0, 3, -1, 1, Q("55 mm")))
sketch5.addConstraint(Sketcher.Constraint("DistanceX", 4, 3, -1, 1, Q("105 mm")))
sketch5.addConstraint(Sketcher.Constraint("DistanceX", 0, 3, 1, 3, Q("105 mm")))
sketch5.addConstraint(Sketcher.Constraint("DistanceX", 1, 3, 2, 3, Q("105 mm")))
sketch5.addConstraint(Sketcher.Constraint("DistanceY", -1, 1, 4, 3, Q("35.932667 mm")))
pocket3 = body.newObject("PartDesign::Pocket", "Pocket002")
pocket3.Profile = sketch5
pocket3.Length = 10

# Sketch on XY plane
sketch6 = body.newObject("Sketcher::SketchObject", "Sketch005")
sketch6.AttachmentSupport = (doc.getObject("XY_Plane"), [""])
sketch6.MapMode = "FlatFace"
sketch6.AttachmentOffset = App.Placement(App.Vector(0, 0, 6), App.Rotation())
sketch6.addGeometry(Part.Circle(App.Vector(0, -55, 0), App.Vector(0, 0, 1), 7.75), False)
sketch6.addConstraint(Sketcher.Constraint("PointOnObject", 0, 3, -2))
sketch6.addConstraint(Sketcher.Constraint("Diameter", 0, Q("15.5 mm")))
sketch6.addConstraint(Sketcher.Constraint("DistanceY", 0, 3, -1, 1, Q("55 mm")))
pocket4 = body.newObject("PartDesign::Pocket", "Pocket003")
pocket4.Profile = sketch6
pocket4.Length = 10

doc.recompute()
